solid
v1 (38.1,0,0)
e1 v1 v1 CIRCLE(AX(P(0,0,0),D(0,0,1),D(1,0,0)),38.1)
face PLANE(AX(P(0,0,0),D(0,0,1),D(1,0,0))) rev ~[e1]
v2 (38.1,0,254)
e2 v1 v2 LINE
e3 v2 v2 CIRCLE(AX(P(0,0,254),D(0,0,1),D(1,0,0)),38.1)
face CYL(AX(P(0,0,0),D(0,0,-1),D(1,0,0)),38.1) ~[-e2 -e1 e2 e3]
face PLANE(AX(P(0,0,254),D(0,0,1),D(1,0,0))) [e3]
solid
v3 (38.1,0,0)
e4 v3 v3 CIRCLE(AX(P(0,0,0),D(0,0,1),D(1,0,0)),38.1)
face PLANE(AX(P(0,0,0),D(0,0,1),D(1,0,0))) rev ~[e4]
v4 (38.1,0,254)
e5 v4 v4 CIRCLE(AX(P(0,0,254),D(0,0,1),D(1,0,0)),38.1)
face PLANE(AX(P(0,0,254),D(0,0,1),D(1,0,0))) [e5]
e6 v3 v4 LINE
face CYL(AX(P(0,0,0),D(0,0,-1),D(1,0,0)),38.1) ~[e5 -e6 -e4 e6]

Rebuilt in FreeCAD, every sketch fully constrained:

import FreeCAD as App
import Part
import Sketcher

V = App.Vector
Q = App.Units.Quantity

doc = App.newDocument("Part")
params = doc.addObject("Spreadsheet::Sheet", "Params")
for row, (alias, value) in enumerate([
    ("sketch1_diameter", "3 in"),
    ("pad1_length", "10 in"),
    ("sketch2_diameter", "3 in"),
    ("pad2_length", "10 in"),
], start=1):
    params.set(f"A{row}", alias)
    params.set(f"B{row}", "=" + value)
    params.setAlias(f"B{row}", alias)

body = doc.addObject("PartDesign::Body", "Body")

sketch1 = body.newObject("Sketcher::SketchObject", "Sketch")
sketch1.AttachmentSupport = (doc.getObject("XY_Plane"), [""])
sketch1.MapMode = "FlatFace"
sketch1.addGeometry(Part.Circle(V(0, 0, 0), V(0, 0, 1), 38), False)
sketch1.addConstraint([
    Sketcher.Constraint("Coincident", 0, 3, -1, 1),
    Sketcher.Constraint("Diameter", 0, Q("3 in")),
])
sketch1.setExpression("Constraints[1]", "Params.sketch1_diameter")
pad1 = body.newObject("PartDesign::Pad", "Pad")
pad1.Profile = sketch1
pad1.setExpression("Length", "Params.pad1_length")
body2 = doc.addObject("PartDesign::Body", "Body001")

sketch2 = body2.newObject("Sketcher::SketchObject", "Sketch001")
sketch2.AttachmentSupport = (doc.getObject("XY_Plane001"), [""])
sketch2.MapMode = "FlatFace"
sketch2.addGeometry(Part.Circle(V(0, 0, 0), V(0, 0, 1), 38), False)
sketch2.addConstraint([
    Sketcher.Constraint("Coincident", 0, 3, -1, 1),
    Sketcher.Constraint("Diameter", 0, Q("3 in")),
])
sketch2.setExpression("Constraints[1]", "Params.sketch2_diameter")
pad2 = body2.newObject("PartDesign::Pad", "Pad001")
pad2.Profile = sketch2
pad2.setExpression("Length", "Params.pad2_length")

doc.recompute()
